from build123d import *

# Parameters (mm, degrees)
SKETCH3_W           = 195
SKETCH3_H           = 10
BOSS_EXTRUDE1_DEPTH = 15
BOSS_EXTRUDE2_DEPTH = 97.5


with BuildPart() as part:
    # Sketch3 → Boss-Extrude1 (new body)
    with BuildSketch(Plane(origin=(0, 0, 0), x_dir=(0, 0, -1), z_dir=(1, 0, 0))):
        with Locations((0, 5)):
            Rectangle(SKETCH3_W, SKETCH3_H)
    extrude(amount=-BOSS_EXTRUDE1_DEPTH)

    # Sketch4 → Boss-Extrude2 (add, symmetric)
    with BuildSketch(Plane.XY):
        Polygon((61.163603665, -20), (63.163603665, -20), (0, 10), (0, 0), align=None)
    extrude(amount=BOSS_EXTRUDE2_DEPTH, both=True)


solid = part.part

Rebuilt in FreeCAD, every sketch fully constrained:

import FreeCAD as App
import Part
import Sketcher

V = App.Vector


def add_polygon(sketch, points):
    """Adds a closed chain of lines whose ends are joined by coincident constraints."""
    first, n = sketch.GeometryCount, len(points)
    for a, b in zip(points, points[1:] + points[:1]):
        sketch.addGeometry(Part.LineSegment(App.Vector(*a, 0), App.Vector(*b, 0)), False)
    for i in range(n):
        sketch.addConstraint(Sketcher.Constraint("Coincident", first + i, 2, first + (i + 1) % n, 1))

doc = App.newDocument("Part")
params = doc.addObject("Spreadsheet::Sheet", "Params")
for row, (alias, value) in enumerate([
    ("sketch1_width", "10 mm"),
    ("sketch1_height", "195 mm"),
    ("pad1_length", "15 mm"),
    ("sketch2_width", "2 mm"),
    ("sketch2_height", "10 mm"),
    ("pad2_length", "195 mm"),
], start=1):
    params.set(f"A{row}", alias)
    params.set(f"B{row}", "=" + value)
    params.setAlias(f"B{row}", alias)

body = doc.addObject("PartDesign::Body", "Body")

sketch1 = doc.addObject("Sketcher::SketchObject", "Sketch")
body.addObject(sketch1)
sketch1.AttachmentSupport = (doc.YZ_Plane, [""])
sketch1.MapMode = "FlatFace"
add_polygon(sketch1, [(10, 97.5), (0, 97.5), (0, -97.5), (10, -97.5)])
sketch1.addConstraint(Sketcher.Constraint("Horizontal", 0))
sketch1.addConstraint(Sketcher.Constraint("Vertical", 1))
sketch1.addConstraint(Sketcher.Constraint("Horizontal", 2))
sketch1.addConstraint(Sketcher.Constraint("Vertical", 3))
sketch1.addConstraint(Sketcher.Constraint("Symmetric", 0, 2, 1, 2, -1, 1))
sketch1.addConstraint(Sketcher.Constraint("DistanceX", 0, 2, 0, 1, 10.0))
sketch1.addConstraint(Sketcher.Constraint("DistanceY", 1, 2, 1, 1, 195.0))
sketch1.setExpression("Constraints[9]", "Params.sketch1_width")
sketch1.setExpression("Constraints[10]", "Params.sketch1_height")
pad1 = doc.addObject("PartDesign::Pad", "Pad")
body.addObject(pad1)
pad1.Profile = sketch1
pad1.setExpression("Length", "Params.pad1_length")
pad1.Reversed = True

sketch2 = doc.addObject("Sketcher::SketchObject", "Sketch001")
body.addObject(sketch2)
sketch2.AttachmentSupport = (doc.XY_Plane, [""])
sketch2.MapMode = "FlatFace"
add_polygon(sketch2, [(61.163604, -20), (63.163604, -20), (0, 10), (0, 0)])
sketch2.addConstraint(Sketcher.Constraint("Horizontal", 0))
sketch2.addConstraint(Sketcher.Constraint("Vertical", 2))
sketch2.addConstraint(Sketcher.Constraint("Coincident", 2, 2, -1, 1))
sketch2.addConstraint(Sketcher.Constraint("DistanceX", 0, 1, 0, 2, 2.0))
sketch2.addConstraint(Sketcher.Constraint("DistanceY", 2, 2, 2, 1, 10.0))
sketch2.addConstraint(Sketcher.Constraint("DistanceY", 0, 2, -1, 1, 20.0))
sketch2.addConstraint(Sketcher.Constraint("Distance", 1, 69.925967))
sketch2.setExpression("Constraints[7]", "Params.sketch2_width")
sketch2.setExpression("Constraints[8]", "Params.sketch2_height")
pad2 = doc.addObject("PartDesign::Pad", "Pad001")
body.addObject(pad2)
pad2.Profile = sketch2
pad2.setExpression("Length", "Params.pad2_length")
pad2.Midplane = True

doc.recompute()
